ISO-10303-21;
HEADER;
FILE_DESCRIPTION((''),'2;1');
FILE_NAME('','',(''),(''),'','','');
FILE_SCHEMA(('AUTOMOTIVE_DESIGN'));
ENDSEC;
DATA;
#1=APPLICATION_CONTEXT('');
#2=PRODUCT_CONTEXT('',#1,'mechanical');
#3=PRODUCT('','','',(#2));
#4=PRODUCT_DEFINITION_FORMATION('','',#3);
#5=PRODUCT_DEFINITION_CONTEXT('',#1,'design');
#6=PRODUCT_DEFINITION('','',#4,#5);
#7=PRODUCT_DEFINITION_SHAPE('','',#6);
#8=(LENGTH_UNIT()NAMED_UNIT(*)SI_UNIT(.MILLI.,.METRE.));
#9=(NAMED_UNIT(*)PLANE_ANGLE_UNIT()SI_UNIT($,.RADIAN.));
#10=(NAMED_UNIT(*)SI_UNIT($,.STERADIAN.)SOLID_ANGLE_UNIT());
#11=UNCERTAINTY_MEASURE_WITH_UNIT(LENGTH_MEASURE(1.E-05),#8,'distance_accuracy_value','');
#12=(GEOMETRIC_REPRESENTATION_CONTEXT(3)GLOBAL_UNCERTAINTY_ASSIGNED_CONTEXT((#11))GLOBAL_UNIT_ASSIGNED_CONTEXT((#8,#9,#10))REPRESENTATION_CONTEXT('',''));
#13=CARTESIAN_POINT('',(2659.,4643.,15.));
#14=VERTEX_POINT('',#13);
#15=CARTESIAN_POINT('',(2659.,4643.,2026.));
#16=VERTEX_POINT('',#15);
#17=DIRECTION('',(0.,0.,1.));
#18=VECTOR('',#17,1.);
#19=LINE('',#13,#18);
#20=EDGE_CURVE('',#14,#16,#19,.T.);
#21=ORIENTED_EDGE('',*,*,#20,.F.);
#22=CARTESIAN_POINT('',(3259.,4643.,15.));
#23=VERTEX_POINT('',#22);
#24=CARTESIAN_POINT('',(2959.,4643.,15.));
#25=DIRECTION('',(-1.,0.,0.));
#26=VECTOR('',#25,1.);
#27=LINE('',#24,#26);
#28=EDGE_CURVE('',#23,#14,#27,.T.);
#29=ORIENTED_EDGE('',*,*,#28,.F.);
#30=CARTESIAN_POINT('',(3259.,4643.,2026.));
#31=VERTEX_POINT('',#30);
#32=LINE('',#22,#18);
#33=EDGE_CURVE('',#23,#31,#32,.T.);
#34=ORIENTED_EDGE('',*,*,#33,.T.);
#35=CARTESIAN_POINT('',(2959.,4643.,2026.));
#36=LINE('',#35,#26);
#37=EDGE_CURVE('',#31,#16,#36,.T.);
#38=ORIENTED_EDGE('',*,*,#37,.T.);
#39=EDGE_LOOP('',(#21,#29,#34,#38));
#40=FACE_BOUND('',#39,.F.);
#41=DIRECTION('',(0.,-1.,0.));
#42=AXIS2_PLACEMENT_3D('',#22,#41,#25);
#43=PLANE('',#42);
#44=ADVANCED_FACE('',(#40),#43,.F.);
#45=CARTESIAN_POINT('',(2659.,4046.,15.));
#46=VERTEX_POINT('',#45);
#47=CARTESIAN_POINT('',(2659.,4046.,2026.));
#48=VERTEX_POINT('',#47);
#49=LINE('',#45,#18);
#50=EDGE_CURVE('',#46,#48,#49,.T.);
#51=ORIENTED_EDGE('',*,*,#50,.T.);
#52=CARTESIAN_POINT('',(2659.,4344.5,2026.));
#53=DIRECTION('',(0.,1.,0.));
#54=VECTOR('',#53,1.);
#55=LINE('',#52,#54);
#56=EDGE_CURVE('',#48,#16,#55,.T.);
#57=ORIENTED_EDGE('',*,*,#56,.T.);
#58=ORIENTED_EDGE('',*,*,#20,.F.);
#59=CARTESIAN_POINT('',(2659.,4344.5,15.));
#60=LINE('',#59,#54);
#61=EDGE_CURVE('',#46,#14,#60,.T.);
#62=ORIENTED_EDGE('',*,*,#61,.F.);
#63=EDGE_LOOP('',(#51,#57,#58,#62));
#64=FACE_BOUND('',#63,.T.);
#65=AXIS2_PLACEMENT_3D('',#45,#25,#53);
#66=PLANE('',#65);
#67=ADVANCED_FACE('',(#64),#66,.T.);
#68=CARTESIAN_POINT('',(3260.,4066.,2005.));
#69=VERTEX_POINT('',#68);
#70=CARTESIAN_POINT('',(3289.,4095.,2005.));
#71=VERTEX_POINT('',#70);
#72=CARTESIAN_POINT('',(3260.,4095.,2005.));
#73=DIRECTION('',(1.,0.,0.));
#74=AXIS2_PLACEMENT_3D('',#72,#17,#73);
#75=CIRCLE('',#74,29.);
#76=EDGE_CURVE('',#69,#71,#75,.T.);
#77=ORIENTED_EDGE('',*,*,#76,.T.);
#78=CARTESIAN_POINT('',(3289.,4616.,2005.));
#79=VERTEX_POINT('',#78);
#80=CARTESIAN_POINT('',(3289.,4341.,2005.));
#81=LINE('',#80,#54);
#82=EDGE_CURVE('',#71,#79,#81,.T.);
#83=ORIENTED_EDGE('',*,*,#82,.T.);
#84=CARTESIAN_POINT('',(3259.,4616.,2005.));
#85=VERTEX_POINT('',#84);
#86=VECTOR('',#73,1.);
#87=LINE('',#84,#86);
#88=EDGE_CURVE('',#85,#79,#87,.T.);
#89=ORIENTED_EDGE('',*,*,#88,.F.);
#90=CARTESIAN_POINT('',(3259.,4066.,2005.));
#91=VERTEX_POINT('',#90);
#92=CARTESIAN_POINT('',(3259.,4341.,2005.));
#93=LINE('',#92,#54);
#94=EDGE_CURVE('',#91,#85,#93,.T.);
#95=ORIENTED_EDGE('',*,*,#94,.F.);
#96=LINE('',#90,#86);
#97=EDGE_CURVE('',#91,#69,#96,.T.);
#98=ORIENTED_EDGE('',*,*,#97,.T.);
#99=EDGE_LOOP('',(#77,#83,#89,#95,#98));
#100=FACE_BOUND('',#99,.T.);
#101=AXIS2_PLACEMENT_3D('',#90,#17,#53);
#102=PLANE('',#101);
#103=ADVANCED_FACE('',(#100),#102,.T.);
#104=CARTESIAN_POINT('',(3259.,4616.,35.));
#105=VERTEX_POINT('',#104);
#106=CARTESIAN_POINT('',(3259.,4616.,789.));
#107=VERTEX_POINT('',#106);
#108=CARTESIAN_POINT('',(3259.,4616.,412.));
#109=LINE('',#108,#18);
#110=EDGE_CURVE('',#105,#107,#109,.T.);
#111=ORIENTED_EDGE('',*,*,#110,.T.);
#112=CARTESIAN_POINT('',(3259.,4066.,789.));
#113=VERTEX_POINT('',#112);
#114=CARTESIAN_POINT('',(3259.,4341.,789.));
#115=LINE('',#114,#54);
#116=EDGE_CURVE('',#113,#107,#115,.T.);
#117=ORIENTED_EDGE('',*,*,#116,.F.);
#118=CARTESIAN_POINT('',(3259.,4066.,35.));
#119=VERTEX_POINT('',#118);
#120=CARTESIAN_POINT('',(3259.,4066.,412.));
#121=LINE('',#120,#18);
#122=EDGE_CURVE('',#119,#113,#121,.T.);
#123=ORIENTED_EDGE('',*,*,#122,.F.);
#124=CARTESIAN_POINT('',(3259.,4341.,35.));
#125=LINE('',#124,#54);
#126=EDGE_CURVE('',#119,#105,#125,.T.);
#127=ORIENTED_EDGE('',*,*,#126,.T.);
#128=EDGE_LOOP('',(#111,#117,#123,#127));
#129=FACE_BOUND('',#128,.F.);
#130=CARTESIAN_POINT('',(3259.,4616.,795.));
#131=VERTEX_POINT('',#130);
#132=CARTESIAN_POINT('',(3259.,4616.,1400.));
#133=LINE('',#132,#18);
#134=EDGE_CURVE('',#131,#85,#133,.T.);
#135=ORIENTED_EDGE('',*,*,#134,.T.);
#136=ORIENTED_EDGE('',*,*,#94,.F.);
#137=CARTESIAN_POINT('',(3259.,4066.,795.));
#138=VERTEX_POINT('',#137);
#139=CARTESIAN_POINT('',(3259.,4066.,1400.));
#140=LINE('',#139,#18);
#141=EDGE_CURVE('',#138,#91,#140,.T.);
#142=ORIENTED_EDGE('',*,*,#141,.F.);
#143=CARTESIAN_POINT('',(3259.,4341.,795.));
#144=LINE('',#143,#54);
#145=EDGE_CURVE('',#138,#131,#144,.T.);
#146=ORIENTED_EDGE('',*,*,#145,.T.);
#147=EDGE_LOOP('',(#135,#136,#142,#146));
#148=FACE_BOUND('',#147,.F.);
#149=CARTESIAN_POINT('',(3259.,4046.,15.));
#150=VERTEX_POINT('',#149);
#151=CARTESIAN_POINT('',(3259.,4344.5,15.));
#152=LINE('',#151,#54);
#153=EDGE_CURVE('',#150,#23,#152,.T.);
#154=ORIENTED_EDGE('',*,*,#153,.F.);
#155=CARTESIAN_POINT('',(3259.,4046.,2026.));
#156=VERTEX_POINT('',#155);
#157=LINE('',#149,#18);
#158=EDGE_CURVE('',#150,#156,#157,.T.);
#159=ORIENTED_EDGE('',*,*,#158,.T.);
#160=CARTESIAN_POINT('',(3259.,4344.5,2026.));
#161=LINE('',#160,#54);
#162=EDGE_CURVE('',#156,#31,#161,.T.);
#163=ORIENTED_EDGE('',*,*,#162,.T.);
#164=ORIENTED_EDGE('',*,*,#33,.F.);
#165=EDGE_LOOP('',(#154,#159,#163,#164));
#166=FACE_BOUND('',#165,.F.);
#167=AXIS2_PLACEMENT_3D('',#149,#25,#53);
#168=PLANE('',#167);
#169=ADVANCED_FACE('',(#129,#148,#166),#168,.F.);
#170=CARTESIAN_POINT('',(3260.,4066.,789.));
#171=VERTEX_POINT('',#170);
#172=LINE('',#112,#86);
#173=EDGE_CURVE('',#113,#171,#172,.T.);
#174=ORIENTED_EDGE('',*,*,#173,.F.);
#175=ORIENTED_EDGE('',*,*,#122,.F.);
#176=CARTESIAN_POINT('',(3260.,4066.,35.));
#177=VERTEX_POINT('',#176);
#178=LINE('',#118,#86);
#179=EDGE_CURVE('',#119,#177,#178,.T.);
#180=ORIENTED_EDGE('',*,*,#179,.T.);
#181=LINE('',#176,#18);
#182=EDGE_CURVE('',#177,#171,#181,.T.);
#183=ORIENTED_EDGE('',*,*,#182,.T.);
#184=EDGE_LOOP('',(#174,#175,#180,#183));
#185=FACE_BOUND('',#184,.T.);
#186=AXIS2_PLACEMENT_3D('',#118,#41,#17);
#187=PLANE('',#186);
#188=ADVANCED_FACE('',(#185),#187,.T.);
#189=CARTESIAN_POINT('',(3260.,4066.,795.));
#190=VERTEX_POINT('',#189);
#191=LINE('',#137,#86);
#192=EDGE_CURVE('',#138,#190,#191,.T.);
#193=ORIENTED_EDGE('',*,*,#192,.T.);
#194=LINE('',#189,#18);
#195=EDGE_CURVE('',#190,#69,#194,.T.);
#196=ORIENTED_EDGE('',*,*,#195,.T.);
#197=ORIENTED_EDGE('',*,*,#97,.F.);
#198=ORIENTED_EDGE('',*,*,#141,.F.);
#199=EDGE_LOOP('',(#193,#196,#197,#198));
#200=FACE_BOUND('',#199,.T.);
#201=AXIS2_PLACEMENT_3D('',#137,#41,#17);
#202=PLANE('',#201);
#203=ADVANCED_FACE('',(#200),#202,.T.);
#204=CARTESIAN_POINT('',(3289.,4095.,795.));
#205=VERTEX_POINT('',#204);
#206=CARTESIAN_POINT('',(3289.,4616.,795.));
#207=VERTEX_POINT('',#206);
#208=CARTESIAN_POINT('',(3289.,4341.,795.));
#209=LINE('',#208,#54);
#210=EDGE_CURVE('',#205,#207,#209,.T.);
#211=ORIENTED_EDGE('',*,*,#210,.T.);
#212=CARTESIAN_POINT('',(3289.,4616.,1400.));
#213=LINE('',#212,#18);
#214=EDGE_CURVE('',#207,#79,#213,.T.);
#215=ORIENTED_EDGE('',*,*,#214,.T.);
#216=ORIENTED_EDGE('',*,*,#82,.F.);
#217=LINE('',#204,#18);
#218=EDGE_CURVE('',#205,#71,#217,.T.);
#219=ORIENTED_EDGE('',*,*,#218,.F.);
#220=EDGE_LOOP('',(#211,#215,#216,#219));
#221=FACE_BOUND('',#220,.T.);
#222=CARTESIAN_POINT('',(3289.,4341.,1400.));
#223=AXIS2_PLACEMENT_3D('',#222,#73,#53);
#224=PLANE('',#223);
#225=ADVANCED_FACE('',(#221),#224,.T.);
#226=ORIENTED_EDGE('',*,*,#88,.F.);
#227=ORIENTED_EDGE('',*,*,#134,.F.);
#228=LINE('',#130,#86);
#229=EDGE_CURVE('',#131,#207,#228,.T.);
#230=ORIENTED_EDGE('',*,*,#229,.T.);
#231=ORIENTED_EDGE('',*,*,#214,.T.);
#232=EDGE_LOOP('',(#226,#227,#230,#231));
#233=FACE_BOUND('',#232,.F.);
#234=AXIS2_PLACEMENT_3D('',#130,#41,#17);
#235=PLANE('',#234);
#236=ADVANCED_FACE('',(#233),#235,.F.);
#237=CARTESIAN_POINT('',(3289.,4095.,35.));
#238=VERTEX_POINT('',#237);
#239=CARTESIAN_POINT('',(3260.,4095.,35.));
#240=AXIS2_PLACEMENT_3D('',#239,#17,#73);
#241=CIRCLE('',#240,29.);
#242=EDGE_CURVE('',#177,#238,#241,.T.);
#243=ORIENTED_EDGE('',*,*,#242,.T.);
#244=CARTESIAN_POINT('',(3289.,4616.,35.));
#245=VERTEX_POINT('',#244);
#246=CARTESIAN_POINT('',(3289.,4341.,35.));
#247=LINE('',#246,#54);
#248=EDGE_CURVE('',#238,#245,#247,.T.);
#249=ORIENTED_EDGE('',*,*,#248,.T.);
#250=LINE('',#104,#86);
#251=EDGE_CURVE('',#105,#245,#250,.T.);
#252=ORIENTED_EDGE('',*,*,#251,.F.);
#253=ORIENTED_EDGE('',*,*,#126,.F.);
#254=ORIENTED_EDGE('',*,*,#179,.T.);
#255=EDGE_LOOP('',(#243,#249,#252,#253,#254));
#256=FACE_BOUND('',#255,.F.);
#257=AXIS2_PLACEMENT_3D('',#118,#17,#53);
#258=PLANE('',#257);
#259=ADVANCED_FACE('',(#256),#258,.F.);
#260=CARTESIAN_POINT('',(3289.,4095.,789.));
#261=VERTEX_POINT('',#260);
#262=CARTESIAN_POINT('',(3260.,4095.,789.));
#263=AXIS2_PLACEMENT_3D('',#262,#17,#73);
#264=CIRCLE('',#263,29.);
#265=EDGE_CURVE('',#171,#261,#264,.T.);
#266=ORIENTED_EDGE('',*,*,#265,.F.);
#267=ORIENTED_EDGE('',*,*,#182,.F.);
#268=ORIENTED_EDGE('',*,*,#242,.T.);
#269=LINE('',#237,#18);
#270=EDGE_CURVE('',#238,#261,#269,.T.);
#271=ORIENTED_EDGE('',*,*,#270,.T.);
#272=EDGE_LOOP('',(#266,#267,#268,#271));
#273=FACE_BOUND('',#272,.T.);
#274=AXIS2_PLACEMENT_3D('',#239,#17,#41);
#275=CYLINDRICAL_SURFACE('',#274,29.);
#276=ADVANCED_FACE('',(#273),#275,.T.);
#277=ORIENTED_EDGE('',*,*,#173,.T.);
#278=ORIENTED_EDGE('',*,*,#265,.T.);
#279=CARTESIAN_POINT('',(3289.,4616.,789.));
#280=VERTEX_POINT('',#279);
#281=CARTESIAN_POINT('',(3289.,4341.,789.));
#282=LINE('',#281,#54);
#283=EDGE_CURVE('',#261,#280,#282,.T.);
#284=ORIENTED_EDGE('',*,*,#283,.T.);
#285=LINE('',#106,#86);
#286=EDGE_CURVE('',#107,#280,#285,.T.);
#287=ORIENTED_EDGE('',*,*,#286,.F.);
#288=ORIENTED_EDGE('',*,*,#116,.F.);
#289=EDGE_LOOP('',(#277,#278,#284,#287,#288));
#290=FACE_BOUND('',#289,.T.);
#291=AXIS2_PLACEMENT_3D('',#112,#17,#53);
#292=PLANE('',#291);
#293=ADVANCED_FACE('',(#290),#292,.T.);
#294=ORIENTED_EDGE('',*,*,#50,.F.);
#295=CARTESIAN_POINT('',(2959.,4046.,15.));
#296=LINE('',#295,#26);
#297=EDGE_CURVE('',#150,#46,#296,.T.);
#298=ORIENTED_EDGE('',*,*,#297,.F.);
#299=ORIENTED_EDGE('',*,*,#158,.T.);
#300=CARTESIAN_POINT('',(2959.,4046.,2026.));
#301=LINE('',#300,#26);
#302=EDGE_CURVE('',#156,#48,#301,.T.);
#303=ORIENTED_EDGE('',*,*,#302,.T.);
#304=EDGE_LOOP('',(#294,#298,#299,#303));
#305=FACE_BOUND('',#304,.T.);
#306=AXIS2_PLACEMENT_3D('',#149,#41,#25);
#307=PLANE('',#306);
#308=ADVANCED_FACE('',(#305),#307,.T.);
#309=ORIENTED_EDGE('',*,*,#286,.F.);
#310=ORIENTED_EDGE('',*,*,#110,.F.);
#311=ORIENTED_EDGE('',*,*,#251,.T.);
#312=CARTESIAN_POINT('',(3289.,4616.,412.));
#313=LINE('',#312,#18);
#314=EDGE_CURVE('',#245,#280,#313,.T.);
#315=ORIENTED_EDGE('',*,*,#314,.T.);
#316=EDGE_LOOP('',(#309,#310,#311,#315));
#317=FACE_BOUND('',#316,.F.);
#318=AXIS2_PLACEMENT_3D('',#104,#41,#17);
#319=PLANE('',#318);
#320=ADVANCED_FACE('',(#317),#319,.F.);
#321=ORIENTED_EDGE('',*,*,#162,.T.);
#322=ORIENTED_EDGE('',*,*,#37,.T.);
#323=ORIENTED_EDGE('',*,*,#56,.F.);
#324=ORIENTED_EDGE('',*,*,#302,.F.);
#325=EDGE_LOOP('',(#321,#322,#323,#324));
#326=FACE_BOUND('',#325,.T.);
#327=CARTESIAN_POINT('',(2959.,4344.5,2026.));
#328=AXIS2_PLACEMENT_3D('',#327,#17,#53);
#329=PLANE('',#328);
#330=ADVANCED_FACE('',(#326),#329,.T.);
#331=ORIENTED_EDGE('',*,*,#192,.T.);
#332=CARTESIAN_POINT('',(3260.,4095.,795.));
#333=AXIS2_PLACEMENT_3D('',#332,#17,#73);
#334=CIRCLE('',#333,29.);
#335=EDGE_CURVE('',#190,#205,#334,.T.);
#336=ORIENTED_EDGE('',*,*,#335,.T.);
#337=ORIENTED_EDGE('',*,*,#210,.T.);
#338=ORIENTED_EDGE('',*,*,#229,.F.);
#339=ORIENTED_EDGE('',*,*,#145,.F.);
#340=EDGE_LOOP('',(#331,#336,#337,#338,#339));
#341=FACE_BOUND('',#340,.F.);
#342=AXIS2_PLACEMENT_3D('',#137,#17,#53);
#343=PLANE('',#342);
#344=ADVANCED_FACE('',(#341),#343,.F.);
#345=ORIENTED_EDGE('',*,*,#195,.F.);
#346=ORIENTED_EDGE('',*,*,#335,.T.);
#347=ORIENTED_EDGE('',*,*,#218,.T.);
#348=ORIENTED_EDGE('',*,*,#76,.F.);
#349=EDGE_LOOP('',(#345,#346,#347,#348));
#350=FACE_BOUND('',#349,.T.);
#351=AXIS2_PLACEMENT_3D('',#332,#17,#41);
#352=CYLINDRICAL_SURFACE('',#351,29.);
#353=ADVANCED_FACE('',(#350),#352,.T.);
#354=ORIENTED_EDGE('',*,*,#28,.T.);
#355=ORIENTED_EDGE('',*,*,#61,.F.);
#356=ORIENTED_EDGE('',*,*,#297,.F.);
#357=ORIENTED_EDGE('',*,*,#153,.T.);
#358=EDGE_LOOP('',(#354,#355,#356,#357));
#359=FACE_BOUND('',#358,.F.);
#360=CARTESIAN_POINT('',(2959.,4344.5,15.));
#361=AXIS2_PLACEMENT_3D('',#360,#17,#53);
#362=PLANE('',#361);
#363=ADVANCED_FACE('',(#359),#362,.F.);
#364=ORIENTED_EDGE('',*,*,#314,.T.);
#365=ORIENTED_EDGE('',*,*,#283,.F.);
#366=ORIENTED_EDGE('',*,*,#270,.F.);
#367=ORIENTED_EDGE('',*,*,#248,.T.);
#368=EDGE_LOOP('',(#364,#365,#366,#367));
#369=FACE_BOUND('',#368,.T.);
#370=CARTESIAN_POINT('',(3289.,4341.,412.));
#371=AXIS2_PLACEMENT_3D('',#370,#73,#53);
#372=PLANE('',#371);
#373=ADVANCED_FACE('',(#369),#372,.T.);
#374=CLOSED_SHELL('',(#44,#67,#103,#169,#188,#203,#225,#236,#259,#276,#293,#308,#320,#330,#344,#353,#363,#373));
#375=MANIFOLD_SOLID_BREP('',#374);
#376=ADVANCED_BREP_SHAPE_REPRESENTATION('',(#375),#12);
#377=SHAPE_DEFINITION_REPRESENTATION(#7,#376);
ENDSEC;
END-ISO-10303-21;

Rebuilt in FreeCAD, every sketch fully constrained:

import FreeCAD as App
import Part
import Sketcher


def edges_at(feature, points):
    """Names of the edges that pass closest to the given points."""
    edges = feature.Shape.Edges
    near = lambda p: min(range(len(edges)), key=lambda i: edges[i].distToShape(Part.Vertex(*p))[0])
    return sorted({f"Edge{near(p) + 1}" for p in points})

doc = App.newDocument("Part")
body = doc.addObject("PartDesign::Body", "Body")

# Sketch on XY plane
sketch1 = doc.addObject("Sketcher::SketchObject", "Sketch")
body.addObject(sketch1)
sketch1.AttachmentSupport = (doc.XY_Plane, [""])
sketch1.MapMode = "FlatFace"
sketch1.addGeometry([
    Part.LineSegment(App.Vector(0, 600, 0), App.Vector(0, 0, 0)),
    Part.LineSegment(App.Vector(0, 0, 0), App.Vector(597, 0, 0)),
    Part.LineSegment(App.Vector(597, 0, 0), App.Vector(597, 600, 0)),
    Part.LineSegment(App.Vector(597, 600, 0), App.Vector(0, 600, 0)),
], False)
sketch1.addConstraint([
    Sketcher.Constraint("Coincident", 0, 2, 1, 1),
    Sketcher.Constraint("Coincident", 1, 2, 2, 1),
    Sketcher.Constraint("Coincident", 2, 2, 3, 1),
    Sketcher.Constraint("Coincident", 3, 2, 0, 1),
    Sketcher.Constraint("Vertical", 0),
    Sketcher.Constraint("Horizontal", 1),
    Sketcher.Constraint("Vertical", 2),
    Sketcher.Constraint("Horizontal", 3),
    Sketcher.Constraint("Coincident", 0, 2, -1, 1),
    Sketcher.Constraint("DistanceX", 1, 1, 1, 2, 597.0),
    Sketcher.Constraint("DistanceY", 0, 2, 0, 1, 600.0),
])
pad1 = doc.addObject("PartDesign::Pad", "Pad")
body.addObject(pad1)
pad1.Profile = sketch1
pad1.Length = 2011

# Sketch on XZ plane
sketch2 = doc.addObject("Sketcher::SketchObject", "Sketch001")
body.addObject(sketch2)
sketch2.AttachmentSupport = (doc.XZ_Plane, [""])
sketch2.MapMode = "FlatFace"
sketch2.addGeometry([
    Part.LineSegment(App.Vector(20, 1990, 0), App.Vector(20, 780, 0)),
    Part.LineSegment(App.Vector(20, 780, 0), App.Vector(570, 780, 0)),
    Part.LineSegment(App.Vector(570, 780, 0), App.Vector(570, 1990, 0)),
    Part.LineSegment(App.Vector(570, 1990, 0), App.Vector(20, 1990, 0)),
], False)
sketch2.addConstraint([
    Sketcher.Constraint("Coincident", 0, 2, 1, 1),
    Sketcher.Constraint("Coincident", 1, 2, 2, 1),
    Sketcher.Constraint("Coincident", 2, 2, 3, 1),
    Sketcher.Constraint("Coincident", 3, 2, 0, 1),
    Sketcher.Constraint("Vertical", 0),
    Sketcher.Constraint("Horizontal", 1),
    Sketcher.Constraint("Vertical", 2),
    Sketcher.Constraint("Horizontal", 3),
    Sketcher.Constraint("DistanceX", 1, 1, 1, 2, 550.0),
    Sketcher.Constraint("DistanceY", 0, 2, 0, 1, 1210.0),
    Sketcher.Constraint("DistanceX", -1, 1, 0, 2, 20.0),
    Sketcher.Constraint("DistanceY", -1, 1, 0, 2, 780.0),
])
pad2 = doc.addObject("PartDesign::Pad", "Pad001")
body.addObject(pad2)
pad2.Profile = sketch2
pad2.Length = 30
doc.recompute()

fillet = doc.addObject("PartDesign::Fillet", "Fillet")
body.addObject(fillet)
fillet.Base = (pad2, edges_at(pad2, [(20, -30, 1385)]))
fillet.Radius = 29

# Sketch on XZ plane
sketch3 = doc.addObject("Sketcher::SketchObject", "Sketch002")
body.addObject(sketch3)
sketch3.AttachmentSupport = (doc.XZ_Plane, [""])
sketch3.MapMode = "FlatFace"
sketch3.addGeometry([
    Part.LineSegment(App.Vector(20, 774, 0), App.Vector(20, 20, 0)),
    Part.LineSegment(App.Vector(20, 20, 0), App.Vector(570, 20, 0)),
    Part.LineSegment(App.Vector(570, 20, 0), App.Vector(570, 774, 0)),
    Part.LineSegment(App.Vector(570, 774, 0), App.Vector(20, 774, 0)),
], False)
sketch3.addConstraint([
    Sketcher.Constraint("Coincident", 0, 2, 1, 1),
    Sketcher.Constraint("Coincident", 1, 2, 2, 1),
    Sketcher.Constraint("Coincident", 2, 2, 3, 1),
    Sketcher.Constraint("Coincident", 3, 2, 0, 1),
    Sketcher.Constraint("Vertical", 0),
    Sketcher.Constraint("Horizontal", 1),
    Sketcher.Constraint("Vertical", 2),
    Sketcher.Constraint("Horizontal", 3),
    Sketcher.Constraint("DistanceX", 1, 1, 1, 2, 550.0),
    Sketcher.Constraint("DistanceY", 0, 2, 0, 1, 754.0),
    Sketcher.Constraint("DistanceX", -1, 1, 0, 2, 20.0),
    Sketcher.Constraint("DistanceY", -1, 1, 0, 2, 20.0),
])
pad3 = doc.addObject("PartDesign::Pad", "Pad002")
body.addObject(pad3)
pad3.Profile = sketch3
pad3.Length = 30
doc.recompute()

fillet2 = doc.addObject("PartDesign::Fillet", "Fillet001")
body.addObject(fillet2)
fillet2.Base = (pad3, edges_at(pad3, [(20, -30, 397)]))
fillet2.Radius = 29
body2 = doc.addObject("PartDesign::Body", "Body001")
doc.recompute()

body.Placement = App.Placement(App.Vector(3259, 4046, 15), App.Rotation(App.Vector(0, 0, 1), 90))
boolean = doc.addObject("PartDesign::Boolean", "Boolean")
body2.addObject(boolean)
boolean.Type = "Fuse"
boolean.addObjects([body])

doc.recompute()
